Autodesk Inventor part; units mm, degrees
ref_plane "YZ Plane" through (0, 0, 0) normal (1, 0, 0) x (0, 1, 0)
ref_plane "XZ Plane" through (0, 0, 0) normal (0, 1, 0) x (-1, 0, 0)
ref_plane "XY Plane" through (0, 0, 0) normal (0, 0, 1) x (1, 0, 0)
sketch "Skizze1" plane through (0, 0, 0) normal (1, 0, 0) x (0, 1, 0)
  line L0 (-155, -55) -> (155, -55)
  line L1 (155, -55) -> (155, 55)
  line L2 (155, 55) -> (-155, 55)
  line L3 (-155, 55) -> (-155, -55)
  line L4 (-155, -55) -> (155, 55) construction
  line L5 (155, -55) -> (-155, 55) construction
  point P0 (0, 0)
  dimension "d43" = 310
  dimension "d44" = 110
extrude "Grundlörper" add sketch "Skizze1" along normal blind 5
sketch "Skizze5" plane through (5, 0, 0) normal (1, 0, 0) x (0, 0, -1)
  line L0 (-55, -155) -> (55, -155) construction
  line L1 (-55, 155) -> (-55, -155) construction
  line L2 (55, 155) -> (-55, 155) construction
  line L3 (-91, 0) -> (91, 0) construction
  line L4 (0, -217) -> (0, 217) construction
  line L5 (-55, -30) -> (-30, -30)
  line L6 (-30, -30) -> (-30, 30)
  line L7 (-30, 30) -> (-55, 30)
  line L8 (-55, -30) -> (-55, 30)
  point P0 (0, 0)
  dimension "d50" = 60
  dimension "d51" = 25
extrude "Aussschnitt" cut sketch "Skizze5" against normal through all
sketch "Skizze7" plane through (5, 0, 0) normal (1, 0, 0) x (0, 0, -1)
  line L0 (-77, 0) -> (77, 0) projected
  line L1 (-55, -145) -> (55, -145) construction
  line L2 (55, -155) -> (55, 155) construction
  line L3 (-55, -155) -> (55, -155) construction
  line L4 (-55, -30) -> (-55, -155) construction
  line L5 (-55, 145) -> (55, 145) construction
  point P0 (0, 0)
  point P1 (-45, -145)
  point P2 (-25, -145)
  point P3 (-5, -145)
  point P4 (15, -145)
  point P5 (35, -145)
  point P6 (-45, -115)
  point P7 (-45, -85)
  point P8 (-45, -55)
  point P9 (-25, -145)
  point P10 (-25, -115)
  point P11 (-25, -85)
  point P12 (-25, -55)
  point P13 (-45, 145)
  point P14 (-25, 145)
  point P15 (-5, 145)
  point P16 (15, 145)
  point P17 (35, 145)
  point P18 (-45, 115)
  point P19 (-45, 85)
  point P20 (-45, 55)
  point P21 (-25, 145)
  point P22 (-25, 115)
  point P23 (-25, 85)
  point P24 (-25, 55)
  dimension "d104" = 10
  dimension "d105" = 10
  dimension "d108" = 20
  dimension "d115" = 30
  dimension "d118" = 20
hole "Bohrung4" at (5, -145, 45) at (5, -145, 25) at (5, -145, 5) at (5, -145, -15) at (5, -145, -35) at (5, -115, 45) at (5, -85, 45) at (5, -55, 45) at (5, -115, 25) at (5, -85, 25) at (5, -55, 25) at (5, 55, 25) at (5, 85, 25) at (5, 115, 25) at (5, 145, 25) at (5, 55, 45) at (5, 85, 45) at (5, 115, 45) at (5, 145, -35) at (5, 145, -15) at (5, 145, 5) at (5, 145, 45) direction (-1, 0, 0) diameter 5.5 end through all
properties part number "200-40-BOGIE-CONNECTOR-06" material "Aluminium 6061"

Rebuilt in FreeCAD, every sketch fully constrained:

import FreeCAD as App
import Part
import Sketcher

doc = App.newDocument("Part")
params = doc.addObject("Spreadsheet::Sheet", "Params")
for row, (alias, value) in enumerate([
    ("sketch1_width", "310 mm"),
    ("sketch1_height", "110 mm"),
    ("pad1_length", "5 mm"),
    ("sketch2_width", "60 mm"),
    ("sketch2_height", "25 mm"),
    ("sketch3_diameter", "5.5 mm"),
    ("hole_diameter", "5.5 mm"),
], start=1):
    params.set(f"A{row}", alias)
    params.set(f"B{row}", "=" + value)
    params.setAlias(f"B{row}", alias)

body = doc.addObject("PartDesign::Body", "Body")

# Sketch on YZ plane
sketch1 = body.newObject("Sketcher::SketchObject", "Sketch")
sketch1.AttachmentSupport = (doc.getObject("YZ_Plane"), [""])
sketch1.MapMode = "FlatFace"
sketch1.addGeometry(Part.LineSegment(App.Vector(-155, 55, 0), App.Vector(-155, -55, 0)), False)
sketch1.addGeometry(Part.LineSegment(App.Vector(-155, -55, 0), App.Vector(155, -55, 0)), False)
sketch1.addGeometry(Part.LineSegment(App.Vector(155, -55, 0), App.Vector(155, 55, 0)), False)
sketch1.addGeometry(Part.LineSegment(App.Vector(155, 55, 0), App.Vector(-155, 55, 0)), False)
sketch1.addConstraint(Sketcher.Constraint("Coincident", 0, 2, 1, 1))
sketch1.addConstraint(Sketcher.Constraint("Coincident", 1, 2, 2, 1))
sketch1.addConstraint(Sketcher.Constraint("Coincident", 2, 2, 3, 1))
sketch1.addConstraint(Sketcher.Constraint("Coincident", 3, 2, 0, 1))
sketch1.addConstraint(Sketcher.Constraint("Vertical", 0))
sketch1.addConstraint(Sketcher.Constraint("Horizontal", 1))
sketch1.addConstraint(Sketcher.Constraint("Vertical", 2))
sketch1.addConstraint(Sketcher.Constraint("Horizontal", 3))
sketch1.addConstraint(Sketcher.Constraint("Symmetric", 0, 2, 2, 2, -1, 1))
sketch1.addConstraint(Sketcher.Constraint("DistanceX", 1, 1, 1, 2, 310.0))
sketch1.addConstraint(Sketcher.Constraint("DistanceY", 0, 2, 0, 1, 110.0))
sketch1.setExpression("Constraints[9]", "Params.sketch1_width")
sketch1.setExpression("Constraints[10]", "Params.sketch1_height")
pad1 = body.newObject("PartDesign::Pad", "Pad")
pad1.Profile = sketch1
pad1.setExpression("Length", "Params.pad1_length")

# Sketch on YZ plane
sketch2 = body.newObject("Sketcher::SketchObject", "Sketch001")
sketch2.AttachmentSupport = (doc.getObject("YZ_Plane"), [""])
sketch2.MapMode = "FlatFace"
sketch2.AttachmentOffset = App.Placement(App.Vector(0, 0, 5), App.Rotation())
sketch2.addGeometry(Part.LineSegment(App.Vector(30, 55, 0), App.Vector(-30, 55, 0)), False)
sketch2.addGeometry(Part.LineSegment(App.Vector(-30, 55, 0), App.Vector(-30, 30, 0)), False)
sketch2.addGeometry(Part.LineSegment(App.Vector(-30, 30, 0), App.Vector(30, 30, 0)), False)
sketch2.addGeometry(Part.LineSegment(App.Vector(30, 30, 0), App.Vector(30, 55, 0)), False)
sketch2.addConstraint(Sketcher.Constraint("Coincident", 0, 2, 1, 1))
sketch2.addConstraint(Sketcher.Constraint("Coincident", 1, 2, 2, 1))
sketch2.addConstraint(Sketcher.Constraint("Coincident", 2, 2, 3, 1))
sketch2.addConstraint(Sketcher.Constraint("Coincident", 3, 2, 0, 1))
sketch2.addConstraint(Sketcher.Constraint("Horizontal", 0))
sketch2.addConstraint(Sketcher.Constraint("Vertical", 1))
sketch2.addConstraint(Sketcher.Constraint("Horizontal", 2))
sketch2.addConstraint(Sketcher.Constraint("Vertical", 3))
sketch2.addConstraint(Sketcher.Constraint("DistanceX", 0, 2, 0, 1, 60.0))
sketch2.addConstraint(Sketcher.Constraint("DistanceY", 1, 2, 1, 1, 25.0))
sketch2.addConstraint(Sketcher.Constraint("DistanceX", 0, 2, -1, 1, 30.0))
sketch2.addConstraint(Sketcher.Constraint("DistanceY", -1, 1, 0, 2, 55.0))
sketch2.setExpression("Constraints[8]", "Params.sketch2_width")
sketch2.setExpression("Constraints[9]", "Params.sketch2_height")
pocket1 = body.newObject("PartDesign::Pocket", "Pocket")
pocket1.Profile = sketch2
pocket1.Type = "ThroughAll"

# Sketch on YZ plane
sketch3 = body.newObject("Sketcher::SketchObject", "Sketch002")
sketch3.AttachmentSupport = (doc.getObject("YZ_Plane"), [""])
sketch3.MapMode = "FlatFace"
sketch3.AttachmentOffset = App.Placement(App.Vector(0, 0, 5), App.Rotation())
sketch3.addGeometry(Part.Circle(App.Vector(-145, 45, 0), App.Vector(0, 0, 1), 2.8), False)
sketch3.addGeometry(Part.Circle(App.Vector(-145, 25, 0), App.Vector(0, 0, 1), 2.8), False)
sketch3.addGeometry(Part.Circle(App.Vector(-145, 5, 0), App.Vector(0, 0, 1), 2.8), False)
sketch3.addGeometry(Part.Circle(App.Vector(-145, -15, 0), App.Vector(0, 0, 1), 2.8), False)
sketch3.addGeometry(Part.Circle(App.Vector(-145, -35, 0), App.Vector(0, 0, 1), 2.8), False)
sketch3.addGeometry(Part.Circle(App.Vector(-115, 45, 0), App.Vector(0, 0, 1), 2.8), False)
sketch3.addGeometry(Part.Circle(App.Vector(-85, 45, 0), App.Vector(0, 0, 1), 2.8), False)
sketch3.addGeometry(Part.Circle(App.Vector(-55, 45, 0), App.Vector(0, 0, 1), 2.8), False)
sketch3.addGeometry(Part.Circle(App.Vector(-115, 25, 0), App.Vector(0, 0, 1), 2.8), False)
sketch3.addGeometry(Part.Circle(App.Vector(-85, 25, 0), App.Vector(0, 0, 1), 2.8), False)
sketch3.addGeometry(Part.Circle(App.Vector(-55, 25, 0), App.Vector(0, 0, 1), 2.8), False)
sketch3.addGeometry(Part.Circle(App.Vector(55, 25, 0), App.Vector(0, 0, 1), 2.8), False)
sketch3.addGeometry(Part.Circle(App.Vector(85, 25, 0), App.Vector(0, 0, 1), 2.8), False)
sketch3.addGeometry(Part.Circle(App.Vector(115, 25, 0), App.Vector(0, 0, 1), 2.8), False)
sketch3.addGeometry(Part.Circle(App.Vector(145, 25, 0), App.Vector(0, 0, 1), 2.8), False)
sketch3.addGeometry(Part.Circle(App.Vector(55, 45, 0), App.Vector(0, 0, 1), 2.8), False)
sketch3.addGeometry(Part.Circle(App.Vector(85, 45, 0), App.Vector(0, 0, 1), 2.8), False)
sketch3.addGeometry(Part.Circle(App.Vector(115, 45, 0), App.Vector(0, 0, 1), 2.8), False)
sketch3.addGeometry(Part.Circle(App.Vector(145, -35, 0), App.Vector(0, 0, 1), 2.8), False)
sketch3.addGeometry(Part.Circle(App.Vector(145, -15, 0), App.Vector(0, 0, 1), 2.8), False)
sketch3.addGeometry(Part.Circle(App.Vector(145, 5, 0), App.Vector(0, 0, 1), 2.8), False)
sketch3.addGeometry(Part.Circle(App.Vector(145, 45, 0), App.Vector(0, 0, 1), 2.8), False)
sketch3.addConstraint(Sketcher.Constraint("Equal", 0, 1))
sketch3.addConstraint(Sketcher.Constraint("Equal", 1, 2))
sketch3.addConstraint(Sketcher.Constraint("Equal", 2, 3))
sketch3.addConstraint(Sketcher.Constraint("Equal", 3, 4))
sketch3.addConstraint(Sketcher.Constraint("Equal", 4, 5))
sketch3.addConstraint(Sketcher.Constraint("Equal", 5, 6))
sketch3.addConstraint(Sketcher.Constraint("Equal", 6, 7))
sketch3.addConstraint(Sketcher.Constraint("Equal", 7, 8))
sketch3.addConstraint(Sketcher.Constraint("Equal", 8, 9))
sketch3.addConstraint(Sketcher.Constraint("Equal", 9, 10))
sketch3.addConstraint(Sketcher.Constraint("Equal", 10, 11))
sketch3.addConstraint(Sketcher.Constraint("Equal", 11, 12))
sketch3.addConstraint(Sketcher.Constraint("Equal", 12, 13))
sketch3.addConstraint(Sketcher.Constraint("Equal", 13, 14))
sketch3.addConstraint(Sketcher.Constraint("Equal", 14, 15))
sketch3.addConstraint(Sketcher.Constraint("Equal", 15, 16))
sketch3.addConstraint(Sketcher.Constraint("Equal", 16, 17))
sketch3.addConstraint(Sketcher.Constraint("Equal", 17, 18))
sketch3.addConstraint(Sketcher.Constraint("Equal", 18, 19))
sketch3.addConstraint(Sketcher.Constraint("Equal", 19, 20))
sketch3.addConstraint(Sketcher.Constraint("Equal", 20, 21))
sketch3.addConstraint(Sketcher.Constraint("Symmetric", 10, 3, 11, 3, -2))
sketch3.addConstraint(Sketcher.Constraint("Symmetric", 9, 3, 12, 3, -2))
sketch3.addConstraint(Sketcher.Constraint("Symmetric", 8, 3, 13, 3, -2))
sketch3.addConstraint(Sketcher.Constraint("Symmetric", 1, 3, 14, 3, -2))
sketch3.addConstraint(Sketcher.Constraint("Symmetric", 7, 3, 15, 3, -2))
sketch3.addConstraint(Sketcher.Constraint("Symmetric", 6, 3, 16, 3, -2))
sketch3.addConstraint(Sketcher.Constraint("Symmetric", 5, 3, 17, 3, -2))
sketch3.addConstraint(Sketcher.Constraint("Symmetric", 4, 3, 18, 3, -2))
sketch3.addConstraint(Sketcher.Constraint("Symmetric", 3, 3, 19, 3, -2))
sketch3.addConstraint(Sketcher.Constraint("Symmetric", 2, 3, 20, 3, -2))
sketch3.addConstraint(Sketcher.Constraint("Symmetric", 0, 3, 21, 3, -2))
sketch3.addConstraint(Sketcher.Constraint("Horizontal", 0, 3, 5, 3))
sketch3.addConstraint(Sketcher.Constraint("Horizontal", 5, 3, 6, 3))
sketch3.addConstraint(Sketcher.Constraint("Horizontal", 6, 3, 7, 3))
sketch3.addConstraint(Sketcher.Constraint("Horizontal", 1, 3, 8, 3))
sketch3.addConstraint(Sketcher.Constraint("Horizontal", 8, 3, 9, 3))
sketch3.addConstraint(Sketcher.Constraint("Horizontal", 9, 3, 10, 3))
sketch3.addConstraint(Sketcher.Constraint("Vertical", 0, 3, 1, 3))
sketch3.addConstraint(Sketcher.Constraint("Vertical", 1, 3, 2, 3))
sketch3.addConstraint(Sketcher.Constraint("Vertical", 2, 3, 3, 3))
sketch3.addConstraint(Sketcher.Constraint("Vertical", 3, 3, 4, 3))
sketch3.addConstraint(Sketcher.Constraint("Vertical", 5, 3, 8, 3))
sketch3.addConstraint(Sketcher.Constraint("Vertical", 6, 3, 9, 3))
sketch3.addConstraint(Sketcher.Constraint("Vertical", 7, 3, 10, 3))
sketch3.addConstraint(Sketcher.Constraint("Diameter", 0, 5.5))
sketch3.addConstraint(Sketcher.Constraint("DistanceX", 0, 3, -1, 1, 145.0))
sketch3.addConstraint(Sketcher.Constraint("DistanceY", -1, 1, 0, 3, 45.0))
sketch3.addConstraint(Sketcher.Constraint("DistanceY", -1, 1, 1, 3, 25.0))
sketch3.addConstraint(Sketcher.Constraint("DistanceY", -1, 1, 2, 3, 5.0))
sketch3.addConstraint(Sketcher.Constraint("DistanceY", 3, 3, -1, 1, 15.0))
sketch3.addConstraint(Sketcher.Constraint("DistanceY", 4, 3, -1, 1, 35.0))
sketch3.addConstraint(Sketcher.Constraint("DistanceX", 5, 3, -1, 1, 115.0))
sketch3.addConstraint(Sketcher.Constraint("DistanceX", 6, 3, -1, 1, 85.0))
sketch3.addConstraint(Sketcher.Constraint("DistanceX", 7, 3, -1, 1, 55.0))
sketch3.setExpression("Constraints[45]", "Params.sketch3_diameter")
doc.recompute()
hole = body.newObject("PartDesign::Hole", "Hole")
hole.Profile = sketch3
hole.ThreadType = "None"
hole.setExpression("Diameter", "Params.hole_diameter")
hole.DepthType = "ThroughAll"

doc.recompute()
